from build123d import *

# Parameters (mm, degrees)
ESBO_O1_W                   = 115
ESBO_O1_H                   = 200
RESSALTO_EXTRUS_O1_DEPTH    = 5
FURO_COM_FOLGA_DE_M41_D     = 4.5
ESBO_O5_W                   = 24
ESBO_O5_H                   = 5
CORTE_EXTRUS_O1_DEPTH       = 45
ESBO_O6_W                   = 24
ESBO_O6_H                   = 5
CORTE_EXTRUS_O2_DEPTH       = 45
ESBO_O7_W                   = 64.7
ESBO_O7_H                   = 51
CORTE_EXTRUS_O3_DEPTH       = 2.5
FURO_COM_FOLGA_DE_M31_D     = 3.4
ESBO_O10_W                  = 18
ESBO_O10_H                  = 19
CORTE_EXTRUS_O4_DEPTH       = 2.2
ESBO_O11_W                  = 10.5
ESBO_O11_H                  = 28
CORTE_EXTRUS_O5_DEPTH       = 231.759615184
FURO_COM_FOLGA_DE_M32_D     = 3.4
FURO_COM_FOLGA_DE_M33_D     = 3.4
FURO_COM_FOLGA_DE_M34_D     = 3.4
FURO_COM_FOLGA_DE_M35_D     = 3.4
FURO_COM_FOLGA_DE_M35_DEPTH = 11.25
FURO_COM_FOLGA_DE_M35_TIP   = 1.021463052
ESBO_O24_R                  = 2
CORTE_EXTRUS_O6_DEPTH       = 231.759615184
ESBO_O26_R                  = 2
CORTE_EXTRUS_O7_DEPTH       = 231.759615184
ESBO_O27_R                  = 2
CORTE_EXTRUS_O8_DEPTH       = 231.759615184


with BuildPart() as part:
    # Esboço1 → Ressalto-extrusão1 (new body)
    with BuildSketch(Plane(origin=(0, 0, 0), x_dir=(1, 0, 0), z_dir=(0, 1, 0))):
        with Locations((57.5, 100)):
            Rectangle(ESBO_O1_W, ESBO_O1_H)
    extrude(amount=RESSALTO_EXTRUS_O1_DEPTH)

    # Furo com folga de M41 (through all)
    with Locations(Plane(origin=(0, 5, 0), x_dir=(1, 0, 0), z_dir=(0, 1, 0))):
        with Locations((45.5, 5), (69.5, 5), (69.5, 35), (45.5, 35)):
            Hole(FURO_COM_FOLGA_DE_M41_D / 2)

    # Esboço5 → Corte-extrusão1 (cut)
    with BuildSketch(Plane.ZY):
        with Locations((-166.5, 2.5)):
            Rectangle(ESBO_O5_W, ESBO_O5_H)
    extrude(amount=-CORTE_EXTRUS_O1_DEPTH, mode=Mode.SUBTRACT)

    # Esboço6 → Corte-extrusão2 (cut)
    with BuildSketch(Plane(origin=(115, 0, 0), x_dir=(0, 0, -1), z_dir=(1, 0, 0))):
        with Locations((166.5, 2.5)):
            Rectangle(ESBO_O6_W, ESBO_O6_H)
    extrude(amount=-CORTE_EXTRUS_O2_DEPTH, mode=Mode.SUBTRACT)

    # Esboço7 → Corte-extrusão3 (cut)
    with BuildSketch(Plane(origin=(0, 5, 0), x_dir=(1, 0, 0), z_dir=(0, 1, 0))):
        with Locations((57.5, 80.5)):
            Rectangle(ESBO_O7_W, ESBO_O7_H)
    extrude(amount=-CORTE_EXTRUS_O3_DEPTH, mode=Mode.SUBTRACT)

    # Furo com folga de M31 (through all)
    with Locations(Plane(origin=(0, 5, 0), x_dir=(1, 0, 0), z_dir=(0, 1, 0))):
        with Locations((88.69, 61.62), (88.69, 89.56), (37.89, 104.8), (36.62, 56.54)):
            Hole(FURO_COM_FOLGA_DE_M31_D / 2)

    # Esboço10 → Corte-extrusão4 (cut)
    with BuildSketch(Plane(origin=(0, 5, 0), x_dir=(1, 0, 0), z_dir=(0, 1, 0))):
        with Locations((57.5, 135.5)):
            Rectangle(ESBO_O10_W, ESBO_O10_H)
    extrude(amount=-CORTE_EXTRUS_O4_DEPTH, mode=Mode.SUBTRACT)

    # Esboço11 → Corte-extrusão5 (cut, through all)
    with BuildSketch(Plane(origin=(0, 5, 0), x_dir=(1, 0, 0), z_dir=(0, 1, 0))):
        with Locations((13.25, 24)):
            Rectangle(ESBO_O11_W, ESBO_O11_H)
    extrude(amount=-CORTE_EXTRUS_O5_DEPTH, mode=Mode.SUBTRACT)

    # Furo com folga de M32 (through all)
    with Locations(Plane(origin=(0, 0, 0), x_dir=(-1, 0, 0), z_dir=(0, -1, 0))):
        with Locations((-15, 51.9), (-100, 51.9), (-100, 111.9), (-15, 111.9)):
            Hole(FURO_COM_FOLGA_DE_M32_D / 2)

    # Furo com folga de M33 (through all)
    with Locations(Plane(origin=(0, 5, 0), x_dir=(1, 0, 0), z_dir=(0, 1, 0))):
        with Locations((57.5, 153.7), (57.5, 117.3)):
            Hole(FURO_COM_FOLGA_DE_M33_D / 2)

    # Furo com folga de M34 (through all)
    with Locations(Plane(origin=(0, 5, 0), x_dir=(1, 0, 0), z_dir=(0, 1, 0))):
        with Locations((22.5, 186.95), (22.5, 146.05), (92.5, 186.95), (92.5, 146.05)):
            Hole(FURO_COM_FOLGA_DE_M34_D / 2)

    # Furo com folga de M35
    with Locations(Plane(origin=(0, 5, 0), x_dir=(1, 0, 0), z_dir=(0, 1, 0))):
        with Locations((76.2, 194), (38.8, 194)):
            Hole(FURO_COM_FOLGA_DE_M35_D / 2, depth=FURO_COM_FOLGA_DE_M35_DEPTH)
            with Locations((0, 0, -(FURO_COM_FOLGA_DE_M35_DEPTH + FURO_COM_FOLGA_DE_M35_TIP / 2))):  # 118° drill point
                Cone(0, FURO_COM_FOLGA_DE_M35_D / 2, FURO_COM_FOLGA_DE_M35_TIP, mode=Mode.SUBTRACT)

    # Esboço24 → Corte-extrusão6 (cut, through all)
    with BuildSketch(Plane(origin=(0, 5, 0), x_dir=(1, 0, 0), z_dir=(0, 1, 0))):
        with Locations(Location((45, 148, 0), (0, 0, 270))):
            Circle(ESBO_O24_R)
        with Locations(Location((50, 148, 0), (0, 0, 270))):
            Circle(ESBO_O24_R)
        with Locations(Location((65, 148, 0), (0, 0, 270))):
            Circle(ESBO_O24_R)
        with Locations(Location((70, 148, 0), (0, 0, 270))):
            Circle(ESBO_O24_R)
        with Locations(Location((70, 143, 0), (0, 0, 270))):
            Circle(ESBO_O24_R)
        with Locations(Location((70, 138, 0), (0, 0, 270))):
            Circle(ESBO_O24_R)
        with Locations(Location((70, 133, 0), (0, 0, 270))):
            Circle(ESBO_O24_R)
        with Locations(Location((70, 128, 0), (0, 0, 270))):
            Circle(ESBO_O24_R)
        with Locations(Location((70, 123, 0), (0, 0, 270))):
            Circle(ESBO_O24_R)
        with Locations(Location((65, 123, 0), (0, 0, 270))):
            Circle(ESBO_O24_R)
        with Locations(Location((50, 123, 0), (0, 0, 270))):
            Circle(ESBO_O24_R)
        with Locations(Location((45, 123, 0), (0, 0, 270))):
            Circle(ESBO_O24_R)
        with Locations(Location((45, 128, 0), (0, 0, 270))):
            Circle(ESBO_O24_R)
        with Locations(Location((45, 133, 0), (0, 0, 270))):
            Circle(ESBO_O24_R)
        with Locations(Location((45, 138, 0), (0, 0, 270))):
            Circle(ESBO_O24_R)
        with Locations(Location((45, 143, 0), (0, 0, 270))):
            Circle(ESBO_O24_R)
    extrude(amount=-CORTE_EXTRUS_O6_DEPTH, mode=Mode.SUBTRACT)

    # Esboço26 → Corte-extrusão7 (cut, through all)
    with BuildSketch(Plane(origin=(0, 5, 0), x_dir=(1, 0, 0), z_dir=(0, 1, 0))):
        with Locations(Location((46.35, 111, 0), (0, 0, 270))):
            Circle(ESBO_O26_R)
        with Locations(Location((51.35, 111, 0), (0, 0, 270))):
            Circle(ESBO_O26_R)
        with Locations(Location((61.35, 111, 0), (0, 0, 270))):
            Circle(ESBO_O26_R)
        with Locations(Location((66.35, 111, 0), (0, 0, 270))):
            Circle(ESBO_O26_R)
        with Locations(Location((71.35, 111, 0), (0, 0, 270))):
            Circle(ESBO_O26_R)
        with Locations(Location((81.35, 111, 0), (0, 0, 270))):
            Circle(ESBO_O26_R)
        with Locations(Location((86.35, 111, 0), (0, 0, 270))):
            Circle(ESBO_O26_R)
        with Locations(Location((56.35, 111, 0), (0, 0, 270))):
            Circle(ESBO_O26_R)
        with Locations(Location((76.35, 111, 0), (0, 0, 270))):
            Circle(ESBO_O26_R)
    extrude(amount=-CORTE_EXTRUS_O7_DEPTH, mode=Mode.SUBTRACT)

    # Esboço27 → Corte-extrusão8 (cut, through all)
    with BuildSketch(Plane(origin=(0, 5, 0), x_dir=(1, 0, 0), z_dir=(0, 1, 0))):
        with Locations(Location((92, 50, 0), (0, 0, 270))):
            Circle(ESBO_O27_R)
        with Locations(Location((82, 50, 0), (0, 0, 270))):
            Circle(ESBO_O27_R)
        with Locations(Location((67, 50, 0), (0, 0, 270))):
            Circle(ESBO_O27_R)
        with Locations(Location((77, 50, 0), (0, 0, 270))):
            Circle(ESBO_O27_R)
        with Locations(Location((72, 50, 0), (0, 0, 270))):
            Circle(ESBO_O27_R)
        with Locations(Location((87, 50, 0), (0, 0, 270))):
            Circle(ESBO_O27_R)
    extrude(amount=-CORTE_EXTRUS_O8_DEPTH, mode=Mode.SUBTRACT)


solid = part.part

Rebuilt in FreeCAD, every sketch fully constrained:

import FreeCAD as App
import Part
import Sketcher
from FreeCAD import Vector
Q = App.Units.Quantity


def add_polygon(sketch, points):
    """Adds a closed chain of lines whose ends are joined by coincident constraints."""
    first, n = sketch.GeometryCount, len(points)
    for a, b in zip(points, points[1:] + points[:1]):
        sketch.addGeometry(Part.LineSegment(App.Vector(*a, 0), App.Vector(*b, 0)), False)
    for i in range(n):
        sketch.addConstraint(Sketcher.Constraint("Coincident", first + i, 2, first + (i + 1) % n, 1))

doc = App.newDocument("Part")
body = doc.addObject("PartDesign::Body", "Body")

sketch1 = body.newObject("Sketcher::SketchObject", "Sketch")
sketch1.AttachmentSupport = (doc.getObject("XZ_Plane"), [""])
sketch1.MapMode = "FlatFace"
add_polygon(sketch1, [(0, -200), (0, 0), (115, 0), (115, -200)])
sketch1.addConstraint(Sketcher.Constraint("Vertical", 0))
sketch1.addConstraint(Sketcher.Constraint("Horizontal", 1))
sketch1.addConstraint(Sketcher.Constraint("Vertical", 2))
sketch1.addConstraint(Sketcher.Constraint("Horizontal", 3))
sketch1.addConstraint(Sketcher.Constraint("Coincident", 0, 2, -1, 1))
sketch1.addConstraint(Sketcher.Constraint("DistanceX", 1, 1, 1, 2, Q("115 mm")))
sketch1.addConstraint(Sketcher.Constraint("DistanceY", 0, 1, 0, 2, Q("200 mm")))
pad1 = body.newObject("PartDesign::Pad", "Pad")
pad1.Profile = sketch1
pad1.Length = 5
pad1.Reversed = True

sketch2 = body.newObject("Sketcher::SketchObject", "Sketch001")
sketch2.AttachmentSupport = (doc.getObject("XZ_Plane"), [""])
sketch2.MapMode = "FlatFace"
sketch2.AttachmentOffset = App.Placement(Vector(0, 0, -5), App.Rotation())
sketch2.addGeometry(Part.Circle(Vector(45.5, -5, 0), Vector(0, 0, 1), 2.2), False)
sketch2.addGeometry(Part.Circle(Vector(69.5, -5, 0), Vector(0, 0, 1), 2.2), False)
sketch2.addGeometry(Part.Circle(Vector(69.5, -35, 0), Vector(0, 0, 1), 2.2), False)
sketch2.addGeometry(Part.Circle(Vector(45.5, -35, 0), Vector(0, 0, 1), 2.2), False)
sketch2.addConstraint(Sketcher.Constraint("Equal", 0, 1))
sketch2.addConstraint(Sketcher.Constraint("Equal", 1, 2))
sketch2.addConstraint(Sketcher.Constraint("Equal", 2, 3))
sketch2.addConstraint(Sketcher.Constraint("Horizontal", 0, 3, 1, 3))
sketch2.addConstraint(Sketcher.Constraint("Horizontal", 2, 3, 3, 3))
sketch2.addConstraint(Sketcher.Constraint("Vertical", 1, 3, 2, 3))
sketch2.addConstraint(Sketcher.Constraint("Vertical", 0, 3, 3, 3))
sketch2.addConstraint(Sketcher.Constraint("Diameter", 0, Q("4.5 mm")))
sketch2.addConstraint(Sketcher.Constraint("DistanceY", 0, 3, -1, 1, Q("5 mm")))
sketch2.addConstraint(Sketcher.Constraint("DistanceY", 2, 3, -1, 1, Q("35 mm")))
sketch2.addConstraint(Sketcher.Constraint("DistanceX", 0, 3, 1, 3, Q("24 mm")))
sketch2.addConstraint(Sketcher.Constraint("DistanceX", -1, 1, 0, 3, Q("45.5 mm")))
doc.recompute()
hole = body.newObject("PartDesign::Hole", "Hole")
hole.Profile = sketch2
hole.ThreadType = "None"
hole.Diameter = 4.5
hole.DepthType = "ThroughAll"
hole.Reversed = True

sketch3 = body.newObject("Sketcher::SketchObject", "Sketch002")
sketch3.AttachmentSupport = (doc.getObject("YZ_Plane"), [""])
sketch3.MapMode = "FlatFace"
add_polygon(sketch3, [(5, -178), (0, -178), (0, -154), (5, -154)])
sketch3.addConstraint(Sketcher.Constraint("Horizontal", 0))
sketch3.addConstraint(Sketcher.Constraint("Vertical", 1))
sketch3.addConstraint(Sketcher.Constraint("Horizontal", 2))
sketch3.addConstraint(Sketcher.Constraint("Vertical", 3))
sketch3.addConstraint(Sketcher.Constraint("PointOnObject", 0, 2, -2))
sketch3.addConstraint(Sketcher.Constraint("DistanceX", 0, 2, 0, 1, Q("5 mm")))
sketch3.addConstraint(Sketcher.Constraint("DistanceY", 1, 1, 1, 2, Q("24 mm")))
sketch3.addConstraint(Sketcher.Constraint("DistanceY", 0, 2, -1, 1, Q("178.5 mm")))
pocket1 = body.newObject("PartDesign::Pocket", "Pocket")
pocket1.Profile = sketch3
pocket1.Length = 45
pocket1.Reversed = True

sketch4 = body.newObject("Sketcher::SketchObject", "Sketch003")
sketch4.AttachmentSupport = (doc.getObject("YZ_Plane"), [""])
sketch4.MapMode = "FlatFace"
sketch4.AttachmentOffset = App.Placement(Vector(0, 0, 115), App.Rotation())
add_polygon(sketch4, [(5, -154), (0, -154), (0, -178), (5, -178)])
sketch4.addConstraint(Sketcher.Constraint("Horizontal", 0))
sketch4.addConstraint(Sketcher.Constraint("Vertical", 1))
sketch4.addConstraint(Sketcher.Constraint("Horizontal", 2))
sketch4.addConstraint(Sketcher.Constraint("Vertical", 3))
sketch4.addConstraint(Sketcher.Constraint("PointOnObject", 0, 2, -2))
sketch4.addConstraint(Sketcher.Constraint("DistanceX", 0, 2, 0, 1, Q("5 mm")))
sketch4.addConstraint(Sketcher.Constraint("DistanceY", 1, 2, 1, 1, Q("24 mm")))
sketch4.addConstraint(Sketcher.Constraint("DistanceY", 0, 2, -1, 1, Q("154.5 mm")))
pocket2 = body.newObject("PartDesign::Pocket", "Pocket001")
pocket2.Profile = sketch4
pocket2.Length = 45

sketch5 = body.newObject("Sketcher::SketchObject", "Sketch004")
sketch5.AttachmentSupport = (doc.getObject("XZ_Plane"), [""])
sketch5.MapMode = "FlatFace"
sketch5.AttachmentOffset = App.Placement(Vector(0, 0, -5), App.Rotation())
add_polygon(sketch5, [(25, -106), (25, -55), (90, -55), (90, -106)])
sketch5.addConstraint(Sketcher.Constraint("Vertical", 0))
sketch5.addConstraint(Sketcher.Constraint("Horizontal", 1))
sketch5.addConstraint(Sketcher.Constraint("Vertical", 2))
sketch5.addConstraint(Sketcher.Constraint("Horizontal", 3))
sketch5.addConstraint(Sketcher.Constraint("DistanceY", 0, 1, 0, 2, Q("51 mm")))
sketch5.addConstraint(Sketcher.Constraint("DistanceX", 1, 1, 1, 2, Q("64.7 mm")))
sketch5.addConstraint(Sketcher.Constraint("DistanceY", 0, 2, -1, 1, Q("55 mm")))
sketch5.addConstraint(Sketcher.Constraint("DistanceX", -1, 1, 0, 2, Q("25.15 mm")))
pocket3 = body.newObject("PartDesign::Pocket", "Pocket002")
pocket3.Profile = sketch5
pocket3.Length = 2.5
pocket3.Reversed = True

sketch6 = body.newObject("Sketcher::SketchObject", "Sketch005")
sketch6.AttachmentSupport = (doc.getObject("XZ_Plane"), [""])
sketch6.MapMode = "FlatFace"
sketch6.AttachmentOffset = App.Placement(Vector(0, 0, -5), App.Rotation())
sketch6.addGeometry(Part.Circle(Vector(88.7, -61.6, 0), Vector(0, 0, 1), 1.7), False)
sketch6.addGeometry(Part.Circle(Vector(88.7, -89.6, 0), Vector(0, 0, 1), 1.7), False)
sketch6.addGeometry(Part.Circle(Vector(37.9, -104.8, 0), Vector(0, 0, 1), 1.7), False)
sketch6.addGeometry(Part.Circle(Vector(36.6, -56.5, 0), Vector(0, 0, 1), 1.7), False)
sketch6.addConstraint(Sketcher.Constraint("Equal", 0, 1))
sketch6.addConstraint(Sketcher.Constraint("Equal", 1, 2))
sketch6.addConstraint(Sketcher.Constraint("Equal", 2, 3))
sketch6.addConstraint(Sketcher.Constraint("Vertical", 0, 3, 1, 3))
sketch6.addConstraint(Sketcher.Constraint("Diameter", 0, Q("3.4 mm")))
sketch6.addConstraint(Sketcher.Constraint("DistanceY", 2, 3, -1, 1, Q("104.8 mm")))
sketch6.addConstraint(Sketcher.Constraint("DistanceX", 2, 3, 1, 3, Q("50.8 mm")))
sketch6.addConstraint(Sketcher.Constraint("DistanceX", -1, 1, 0, 3, Q("88.69 mm")))
sketch6.addConstraint(Sketcher.Constraint("DistanceY", 0, 3, -1, 1, Q("61.62 mm")))
sketch6.addConstraint(Sketcher.Constraint("DistanceY", 1, 3, -1, 1, Q("89.56 mm")))
sketch6.addConstraint(Sketcher.Constraint("DistanceX", -1, 1, 3, 3, Q("36.62 mm")))
sketch6.addConstraint(Sketcher.Constraint("DistanceY", 3, 3, -1, 1, Q("56.54 mm")))
doc.recompute()
hole2 = body.newObject("PartDesign::Hole", "Hole001")
hole2.Profile = sketch6
hole2.ThreadType = "None"
hole2.Diameter = 3.4
hole2.DepthType = "ThroughAll"
hole2.Reversed = True

sketch7 = body.newObject("Sketcher::SketchObject", "Sketch006")
sketch7.AttachmentSupport = (doc.getObject("XZ_Plane"), [""])
sketch7.MapMode = "FlatFace"
sketch7.AttachmentOffset = App.Placement(Vector(0, 0, -5), App.Rotation())
add_polygon(sketch7, [(48, -145), (48, -126), (66, -126), (66, -145)])
sketch7.addConstraint(Sketcher.Constraint("Vertical", 0))
sketch7.addConstraint(Sketcher.Constraint("Horizontal", 1))
sketch7.addConstraint(Sketcher.Constraint("Vertical", 2))
sketch7.addConstraint(Sketcher.Constraint("Horizontal", 3))
sketch7.addConstraint(Sketcher.Constraint("DistanceX", 1, 1, 1, 2, Q("18 mm")))
sketch7.addConstraint(Sketcher.Constraint("DistanceY", 0, 1, 0, 2, Q("19 mm")))
sketch7.addConstraint(Sketcher.Constraint("DistanceY", 0, 2, -1, 1, Q("126 mm")))
sketch7.addConstraint(Sketcher.Constraint("DistanceX", -1, 1, 0, 2, Q("48.5 mm")))
pocket4 = body.newObject("PartDesign::Pocket", "Pocket003")
pocket4.Profile = sketch7
pocket4.Length = 2.2
pocket4.Reversed = True

sketch8 = body.newObject("Sketcher::SketchObject", "Sketch007")
sketch8.AttachmentSupport = (doc.getObject("XZ_Plane"), [""])
sketch8.MapMode = "FlatFace"
sketch8.AttachmentOffset = App.Placement(Vector(0, 0, -5), App.Rotation())
add_polygon(sketch8, [(8, -38), (8, -10), (18, -10), (18, -38)])
sketch8.addConstraint(Sketcher.Constraint("Vertical", 0))
sketch8.addConstraint(Sketcher.Constraint("Horizontal", 1))
sketch8.addConstraint(Sketcher.Constraint("Vertical", 2))
sketch8.addConstraint(Sketcher.Constraint("Horizontal", 3))
sketch8.addConstraint(Sketcher.Constraint("DistanceY", 0, 1, 0, 2, Q("28 mm")))
sketch8.addConstraint(Sketcher.Constraint("DistanceX", 1, 1, 1, 2, Q("10.5 mm")))
sketch8.addConstraint(Sketcher.Constraint("DistanceX", -1, 1, 0, 2, Q("8 mm")))
sketch8.addConstraint(Sketcher.Constraint("DistanceY", 0, 2, -1, 1, Q("10 mm")))
pocket5 = body.newObject("PartDesign::Pocket", "Pocket004")
pocket5.Profile = sketch8
pocket5.Type = "ThroughAll"
pocket5.Reversed = True

sketch9 = body.newObject("Sketcher::SketchObject", "Sketch008")
sketch9.AttachmentSupport = (doc.getObject("XZ_Plane"), [""])
sketch9.MapMode = "FlatFace"
sketch9.addGeometry(Part.Circle(Vector(15, -51.9, 0), Vector(0, 0, 1), 1.7), False)
sketch9.addGeometry(Part.Circle(Vector(100, -51.9, 0), Vector(0, 0, 1), 1.7), False)
sketch9.addGeometry(Part.Circle(Vector(100, -111.9, 0), Vector(0, 0, 1), 1.7), False)
sketch9.addGeometry(Part.Circle(Vector(15, -111.9, 0), Vector(0, 0, 1), 1.7), False)
sketch9.addConstraint(Sketcher.Constraint("Equal", 0, 1))
sketch9.addConstraint(Sketcher.Constraint("Equal", 1, 2))
sketch9.addConstraint(Sketcher.Constraint("Equal", 2, 3))
sketch9.addConstraint(Sketcher.Constraint("Horizontal", 0, 3, 1, 3))
sketch9.addConstraint(Sketcher.Constraint("Horizontal", 2, 3, 3, 3))
sketch9.addConstraint(Sketcher.Constraint("Vertical", 1, 3, 2, 3))
sketch9.addConstraint(Sketcher.Constraint("Vertical", 0, 3, 3, 3))
sketch9.addConstraint(Sketcher.Constraint("Diameter", 0, Q("3.4 mm")))
sketch9.addConstraint(Sketcher.Constraint("DistanceX", -1, 1, 0, 3, Q("15 mm")))
sketch9.addConstraint(Sketcher.Constraint("DistanceX", -1, 1, 1, 3, Q("100 mm")))
sketch9.addConstraint(Sketcher.Constraint("DistanceY", 2, 3, 1, 3, Q("60 mm")))
sketch9.addConstraint(Sketcher.Constraint("DistanceY", 0, 3, -1, 1, Q("51.9 mm")))
doc.recompute()
hole3 = body.newObject("PartDesign::Hole", "Hole002")
hole3.Profile = sketch9
hole3.ThreadType = "None"
hole3.Diameter = 3.4
hole3.DepthType = "ThroughAll"

sketch10 = body.newObject("Sketcher::SketchObject", "Sketch009")
sketch10.AttachmentSupport = (doc.getObject("XZ_Plane"), [""])
sketch10.MapMode = "FlatFace"
sketch10.AttachmentOffset = App.Placement(Vector(0, 0, -5), App.Rotation())
sketch10.addGeometry(Part.Circle(Vector(57.5, -153.7, 0), Vector(0, 0, 1), 1.7), False)
sketch10.addGeometry(Part.Circle(Vector(57.5, -117.3, 0), Vector(0, 0, 1), 1.7), False)
sketch10.addConstraint(Sketcher.Constraint("Equal", 0, 1))
sketch10.addConstraint(Sketcher.Constraint("Vertical", 0, 3, 1, 3))
sketch10.addConstraint(Sketcher.Constraint("Diameter", 0, Q("3.4 mm")))
sketch10.addConstraint(Sketcher.Constraint("DistanceX", -1, 1, 0, 3, Q("57.5 mm")))
sketch10.addConstraint(Sketcher.Constraint("DistanceY", 0, 3, -1, 1, Q("153.7 mm")))
sketch10.addConstraint(Sketcher.Constraint("DistanceY", 1, 3, -1, 1, Q("117.3 mm")))
doc.recompute()
hole4 = body.newObject("PartDesign::Hole", "Hole003")
hole4.Profile = sketch10
hole4.ThreadType = "None"
hole4.Diameter = 3.4
hole4.DepthType = "ThroughAll"
hole4.Reversed = True

sketch11 = body.newObject("Sketcher::SketchObject", "Sketch010")
sketch11.AttachmentSupport = (doc.getObject("XZ_Plane"), [""])
sketch11.MapMode = "FlatFace"
sketch11.AttachmentOffset = App.Placement(Vector(0, 0, -5), App.Rotation())
sketch11.addGeometry(Part.Circle(Vector(22.5, -186.9, 0), Vector(0, 0, 1), 1.7), False)
sketch11.addGeometry(Part.Circle(Vector(22.5, -146.1, 0), Vector(0, 0, 1), 1.7), False)
sketch11.addGeometry(Part.Circle(Vector(92.5, -186.9, 0), Vector(0, 0, 1), 1.7), False)
sketch11.addGeometry(Part.Circle(Vector(92.5, -146.1, 0), Vector(0, 0, 1), 1.7), False)
sketch11.addConstraint(Sketcher.Constraint("Equal", 0, 1))
sketch11.addConstraint(Sketcher.Constraint("Equal", 1, 2))
sketch11.addConstraint(Sketcher.Constraint("Equal", 2, 3))
sketch11.addConstraint(Sketcher.Constraint("Horizontal", 0, 3, 2, 3))
sketch11.addConstraint(Sketcher.Constraint("Horizontal", 1, 3, 3, 3))
sketch11.addConstraint(Sketcher.Constraint("Vertical", 0, 3, 1, 3))
sketch11.addConstraint(Sketcher.Constraint("Vertical", 2, 3, 3, 3))
sketch11.addConstraint(Sketcher.Constraint("Diameter", 0, Q("3.4 mm")))
sketch11.addConstraint(Sketcher.Constraint("DistanceX", 0, 3, 2, 3, Q("70 mm")))
sketch11.addConstraint(Sketcher.Constraint("DistanceX", -1, 1, 0, 3, Q("22.5 mm")))
sketch11.addConstraint(Sketcher.Constraint("DistanceY", 0, 3, 1, 3, Q("40.9 mm")))
sketch11.addConstraint(Sketcher.Constraint("DistanceY", 0, 3, -1, 1, Q("186.95 mm")))
doc.recompute()
hole5 = body.newObject("PartDesign::Hole", "Hole004")
hole5.Profile = sketch11
hole5.ThreadType = "None"
hole5.Diameter = 3.4
hole5.DepthType = "ThroughAll"
hole5.Reversed = True

sketch12 = body.newObject("Sketcher::SketchObject", "Sketch011")
sketch12.AttachmentSupport = (doc.getObject("XZ_Plane"), [""])
sketch12.MapMode = "FlatFace"
sketch12.AttachmentOffset = App.Placement(Vector(0, 0, -5), App.Rotation())
sketch12.addGeometry(Part.Circle(Vector(76.2, -194, 0), Vector(0, 0, 1), 1.7), False)
sketch12.addGeometry(Part.Circle(Vector(38.8, -194, 0), Vector(0, 0, 1), 1.7), False)
sketch12.addConstraint(Sketcher.Constraint("Equal", 0, 1))
sketch12.addConstraint(Sketcher.Constraint("Horizontal", 0, 3, 1, 3))
sketch12.addConstraint(Sketcher.Constraint("Diameter", 0, Q("3.4 mm")))
sketch12.addConstraint(Sketcher.Constraint("DistanceY", 0, 3, -1, 1, Q("194 mm")))
sketch12.addConstraint(Sketcher.Constraint("DistanceX", -1, 1, 0, 3, Q("76.2 mm")))
sketch12.addConstraint(Sketcher.Constraint("DistanceX", -1, 1, 1, 3, Q("38.8 mm")))
doc.recompute()
hole6 = body.newObject("PartDesign::Hole", "Hole005")
hole6.Profile = sketch12
hole6.ThreadType = "None"
hole6.Diameter = 3.4
hole6.DepthType = "Dimension"
hole6.Depth = 11.25
hole6.DrillPoint = "Angled"
hole6.DrillPointAngle = 118
hole6.Reversed = True

sketch13 = body.newObject("Sketcher::SketchObject", "Sketch012")
sketch13.AttachmentSupport = (doc.getObject("XZ_Plane"), [""])
sketch13.MapMode = "FlatFace"
sketch13.AttachmentOffset = App.Placement(Vector(0, 0, -5), App.Rotation())
sketch13.addGeometry(Part.Circle(Vector(45, -148, 0), Vector(0, 0, 1), 2), False)
sketch13.addGeometry(Part.Circle(Vector(50, -148, 0), Vector(0, 0, 1), 2), False)
sketch13.addGeometry(Part.Circle(Vector(65, -148, 0), Vector(0, 0, 1), 2), False)
sketch13.addGeometry(Part.Circle(Vector(70, -148, 0), Vector(0, 0, 1), 2), False)
sketch13.addGeometry(Part.Circle(Vector(70, -143, 0), Vector(0, 0, 1), 2), False)
sketch13.addGeometry(Part.Circle(Vector(70, -138, 0), Vector(0, 0, 1), 2), False)
sketch13.addGeometry(Part.Circle(Vector(70, -133, 0), Vector(0, 0, 1), 2), False)
sketch13.addGeometry(Part.Circle(Vector(70, -128, 0), Vector(0, 0, 1), 2), False)
sketch13.addGeometry(Part.Circle(Vector(70, -123, 0), Vector(0, 0, 1), 2), False)
sketch13.addGeometry(Part.Circle(Vector(65, -123, 0), Vector(0, 0, 1), 2), False)
sketch13.addGeometry(Part.Circle(Vector(50, -123, 0), Vector(0, 0, 1), 2), False)
sketch13.addGeometry(Part.Circle(Vector(45, -123, 0), Vector(0, 0, 1), 2), False)
sketch13.addGeometry(Part.Circle(Vector(45, -128, 0), Vector(0, 0, 1), 2), False)
sketch13.addGeometry(Part.Circle(Vector(45, -133, 0), Vector(0, 0, 1), 2), False)
sketch13.addGeometry(Part.Circle(Vector(45, -138, 0), Vector(0, 0, 1), 2), False)
sketch13.addGeometry(Part.Circle(Vector(45, -143, 0), Vector(0, 0, 1), 2), False)
sketch13.addConstraint(Sketcher.Constraint("Equal", 0, 1))
sketch13.addConstraint(Sketcher.Constraint("Equal", 1, 2))
sketch13.addConstraint(Sketcher.Constraint("Equal", 2, 3))
sketch13.addConstraint(Sketcher.Constraint("Equal", 3, 4))
sketch13.addConstraint(Sketcher.Constraint("Equal", 4, 5))
sketch13.addConstraint(Sketcher.Constraint("Equal", 5, 6))
sketch13.addConstraint(Sketcher.Constraint("Equal", 6, 7))
sketch13.addConstraint(Sketcher.Constraint("Equal", 7, 8))
sketch13.addConstraint(Sketcher.Constraint("Equal", 8, 9))
sketch13.addConstraint(Sketcher.Constraint("Equal", 9, 10))
sketch13.addConstraint(Sketcher.Constraint("Equal", 10, 11))
sketch13.addConstraint(Sketcher.Constraint("Equal", 11, 12))
sketch13.addConstraint(Sketcher.Constraint("Equal", 12, 13))
sketch13.addConstraint(Sketcher.Constraint("Equal", 13, 14))
sketch13.addConstraint(Sketcher.Constraint("Equal", 14, 15))
sketch13.addConstraint(Sketcher.Constraint("Horizontal", 0, 3, 1, 3))
sketch13.addConstraint(Sketcher.Constraint("Horizontal", 1, 3, 2, 3))
sketch13.addConstraint(Sketcher.Constraint("Horizontal", 2, 3, 3, 3))
sketch13.addConstraint(Sketcher.Constraint("Horizontal", 8, 3, 9, 3))
sketch13.addConstraint(Sketcher.Constraint("Horizontal", 9, 3, 10, 3))
sketch13.addConstraint(Sketcher.Constraint("Horizontal", 10, 3, 11, 3))
sketch13.addConstraint(Sketcher.Constraint("Horizontal", 7, 3, 12, 3))
sketch13.addConstraint(Sketcher.Constraint("Horizontal", 6, 3, 13, 3))
sketch13.addConstraint(Sketcher.Constraint("Horizontal", 5, 3, 14, 3))
sketch13.addConstraint(Sketcher.Constraint("Horizontal", 4, 3, 15, 3))
sketch13.addConstraint(Sketcher.Constraint("Vertical", 3, 3, 4, 3))
sketch13.addConstraint(Sketcher.Constraint("Vertical", 4, 3, 5, 3))
sketch13.addConstraint(Sketcher.Constraint("Vertical", 5, 3, 6, 3))
sketch13.addConstraint(Sketcher.Constraint("Vertical", 6, 3, 7, 3))
sketch13.addConstraint(Sketcher.Constraint("Vertical", 7, 3, 8, 3))
sketch13.addConstraint(Sketcher.Constraint("Vertical", 2, 3, 9, 3))
sketch13.addConstraint(Sketcher.Constraint("Vertical", 1, 3, 10, 3))
sketch13.addConstraint(Sketcher.Constraint("Vertical", 0, 3, 11, 3))
sketch13.addConstraint(Sketcher.Constraint("Vertical", 11, 3, 12, 3))
sketch13.addConstraint(Sketcher.Constraint("Vertical", 12, 3, 13, 3))
sketch13.addConstraint(Sketcher.Constraint("Vertical", 13, 3, 14, 3))
sketch13.addConstraint(Sketcher.Constraint("Vertical", 14, 3, 15, 3))
sketch13.addConstraint(Sketcher.Constraint("Diameter", 0, Q("4 mm")))
sketch13.addConstraint(Sketcher.Constraint("DistanceX", -1, 1, 0, 3, Q("45 mm")))
sketch13.addConstraint(Sketcher.Constraint("DistanceY", 0, 3, -1, 1, Q("148 mm")))
sketch13.addConstraint(Sketcher.Constraint("DistanceX", -1, 1, 1, 3, Q("50 mm")))
sketch13.addConstraint(Sketcher.Constraint("DistanceX", -1, 1, 2, 3, Q("65 mm")))
sketch13.addConstraint(Sketcher.Constraint("DistanceX", -1, 1, 3, 3, Q("70 mm")))
sketch13.addConstraint(Sketcher.Constraint("DistanceY", 4, 3, -1, 1, Q("143 mm")))
sketch13.addConstraint(Sketcher.Constraint("DistanceY", 5, 3, -1, 1, Q("138 mm")))
sketch13.addConstraint(Sketcher.Constraint("DistanceY", 6, 3, -1, 1, Q("133 mm")))
sketch13.addConstraint(Sketcher.Constraint("DistanceY", 7, 3, -1, 1, Q("128 mm")))
sketch13.addConstraint(Sketcher.Constraint("DistanceY", 8, 3, -1, 1, Q("123 mm")))
pocket6 = body.newObject("PartDesign::Pocket", "Pocket005")
pocket6.Profile = sketch13
pocket6.Type = "ThroughAll"
pocket6.Reversed = True

sketch14 = body.newObject("Sketcher::SketchObject", "Sketch013")
sketch14.AttachmentSupport = (doc.getObject("XZ_Plane"), [""])
sketch14.MapMode = "FlatFace"
sketch14.AttachmentOffset = App.Placement(Vector(0, 0, -5), App.Rotation())
sketch14.addGeometry(Part.Circle(Vector(46.4, -111, 0), Vector(0, 0, 1), 2), False)
sketch14.addGeometry(Part.Circle(Vector(51.4, -111, 0), Vector(0, 0, 1), 2), False)
sketch14.addGeometry(Part.Circle(Vector(61.4, -111, 0), Vector(0, 0, 1), 2), False)
sketch14.addGeometry(Part.Circle(Vector(66.3, -111, 0), Vector(0, 0, 1), 2), False)
sketch14.addGeometry(Part.Circle(Vector(71.3, -111, 0), Vector(0, 0, 1), 2), False)
sketch14.addGeometry(Part.Circle(Vector(81.3, -111, 0), Vector(0, 0, 1), 2), False)
sketch14.addGeometry(Part.Circle(Vector(86.3, -111, 0), Vector(0, 0, 1), 2), False)
sketch14.addGeometry(Part.Circle(Vector(56.4, -111, 0), Vector(0, 0, 1), 2), False)
sketch14.addGeometry(Part.Circle(Vector(76.3, -111, 0), Vector(0, 0, 1), 2), False)
sketch14.addConstraint(Sketcher.Constraint("Equal", 0, 1))
sketch14.addConstraint(Sketcher.Constraint("Equal", 1, 2))
sketch14.addConstraint(Sketcher.Constraint("Equal", 2, 3))
sketch14.addConstraint(Sketcher.Constraint("Equal", 3, 4))
sketch14.addConstraint(Sketcher.Constraint("Equal", 4, 5))
sketch14.addConstraint(Sketcher.Constraint("Equal", 5, 6))
sketch14.addConstraint(Sketcher.Constraint("Equal", 6, 7))
sketch14.addConstraint(Sketcher.Constraint("Equal", 7, 8))
sketch14.addConstraint(Sketcher.Constraint("Horizontal", 0, 3, 1, 3))
sketch14.addConstraint(Sketcher.Constraint("Horizontal", 1, 3, 2, 3))
sketch14.addConstraint(Sketcher.Constraint("Horizontal", 2, 3, 3, 3))
sketch14.addConstraint(Sketcher.Constraint("Horizontal", 3, 3, 4, 3))
sketch14.addConstraint(Sketcher.Constraint("Horizontal", 4, 3, 5, 3))
sketch14.addConstraint(Sketcher.Constraint("Horizontal", 5, 3, 6, 3))
sketch14.addConstraint(Sketcher.Constraint("Horizontal", 6, 3, 7, 3))
sketch14.addConstraint(Sketcher.Constraint("Horizontal", 7, 3, 8, 3))
sketch14.addConstraint(Sketcher.Constraint("Diameter", 0, Q("4 mm")))
sketch14.addConstraint(Sketcher.Constraint("DistanceY", 0, 3, -1, 1, Q("111 mm")))
sketch14.addConstraint(Sketcher.Constraint("DistanceX", 0, 3, 1, 3, Q("5 mm")))
sketch14.addConstraint(Sketcher.Constraint("DistanceX", 1, 3, 2, 3, Q("10 mm")))
sketch14.addConstraint(Sketcher.Constraint("DistanceX", 2, 3, 3, 3, Q("5 mm")))
sketch14.addConstraint(Sketcher.Constraint("DistanceX", 3, 3, 4, 3, Q("5 mm")))
sketch14.addConstraint(Sketcher.Constraint("DistanceX", 4, 3, 5, 3, Q("10 mm")))
sketch14.addConstraint(Sketcher.Constraint("DistanceX", 5, 3, 6, 3, Q("5 mm")))
sketch14.addConstraint(Sketcher.Constraint("DistanceX", 1, 3, 7, 3, Q("5 mm")))
sketch14.addConstraint(Sketcher.Constraint("DistanceX", 4, 3, 8, 3, Q("5 mm")))
sketch14.addConstraint(Sketcher.Constraint("DistanceX", -1, 1, 0, 3, Q("46.35 mm")))
pocket7 = body.newObject("PartDesign::Pocket", "Pocket006")
pocket7.Profile = sketch14
pocket7.Type = "ThroughAll"
pocket7.Reversed = True

sketch15 = body.newObject("Sketcher::SketchObject", "Sketch014")
sketch15.AttachmentSupport = (doc.getObject("XZ_Plane"), [""])
sketch15.MapMode = "FlatFace"
sketch15.AttachmentOffset = App.Placement(Vector(0, 0, -5), App.Rotation())
sketch15.addGeometry(Part.Circle(Vector(92, -50, 0), Vector(0, 0, 1), 2), False)
sketch15.addGeometry(Part.Circle(Vector(82, -50, 0), Vector(0, 0, 1), 2), False)
sketch15.addGeometry(Part.Circle(Vector(67, -50, 0), Vector(0, 0, 1), 2), False)
sketch15.addGeometry(Part.Circle(Vector(77, -50, 0), Vector(0, 0, 1), 2), False)
sketch15.addGeometry(Part.Circle(Vector(72, -50, 0), Vector(0, 0, 1), 2), False)
sketch15.addGeometry(Part.Circle(Vector(87, -50, 0), Vector(0, 0, 1), 2), False)
sketch15.addConstraint(Sketcher.Constraint("Equal", 0, 1))
sketch15.addConstraint(Sketcher.Constraint("Equal", 1, 2))
sketch15.addConstraint(Sketcher.Constraint("Equal", 2, 3))
sketch15.addConstraint(Sketcher.Constraint("Equal", 3, 4))
sketch15.addConstraint(Sketcher.Constraint("Equal", 4, 5))
sketch15.addConstraint(Sketcher.Constraint("Horizontal", 0, 3, 1, 3))
sketch15.addConstraint(Sketcher.Constraint("Horizontal", 1, 3, 2, 3))
sketch15.addConstraint(Sketcher.Constraint("Horizontal", 2, 3, 3, 3))
sketch15.addConstraint(Sketcher.Constraint("Horizontal", 3, 3, 4, 3))
sketch15.addConstraint(Sketcher.Constraint("Horizontal", 4, 3, 5, 3))
sketch15.addConstraint(Sketcher.Constraint("Diameter", 0, Q("4 mm")))
sketch15.addConstraint(Sketcher.Constraint("DistanceX", -1, 1, 0, 3, Q("92 mm")))
sketch15.addConstraint(Sketcher.Constraint("DistanceY", 0, 3, -1, 1, Q("50 mm")))
sketch15.addConstraint(Sketcher.Constraint("DistanceX", -1, 1, 1, 3, Q("82 mm")))
sketch15.addConstraint(Sketcher.Constraint("DistanceX", -1, 1, 2, 3, Q("67 mm")))
sketch15.addConstraint(Sketcher.Constraint("DistanceX", -1, 1, 3, 3, Q("77 mm")))
sketch15.addConstraint(Sketcher.Constraint("DistanceX", -1, 1, 4, 3, Q("72 mm")))
sketch15.addConstraint(Sketcher.Constraint("DistanceX", -1, 1, 5, 3, Q("87 mm")))
pocket8 = body.newObject("PartDesign::Pocket", "Pocket007")
pocket8.Profile = sketch15
pocket8.Type = "ThroughAll"
pocket8.Reversed = True

doc.recompute()
